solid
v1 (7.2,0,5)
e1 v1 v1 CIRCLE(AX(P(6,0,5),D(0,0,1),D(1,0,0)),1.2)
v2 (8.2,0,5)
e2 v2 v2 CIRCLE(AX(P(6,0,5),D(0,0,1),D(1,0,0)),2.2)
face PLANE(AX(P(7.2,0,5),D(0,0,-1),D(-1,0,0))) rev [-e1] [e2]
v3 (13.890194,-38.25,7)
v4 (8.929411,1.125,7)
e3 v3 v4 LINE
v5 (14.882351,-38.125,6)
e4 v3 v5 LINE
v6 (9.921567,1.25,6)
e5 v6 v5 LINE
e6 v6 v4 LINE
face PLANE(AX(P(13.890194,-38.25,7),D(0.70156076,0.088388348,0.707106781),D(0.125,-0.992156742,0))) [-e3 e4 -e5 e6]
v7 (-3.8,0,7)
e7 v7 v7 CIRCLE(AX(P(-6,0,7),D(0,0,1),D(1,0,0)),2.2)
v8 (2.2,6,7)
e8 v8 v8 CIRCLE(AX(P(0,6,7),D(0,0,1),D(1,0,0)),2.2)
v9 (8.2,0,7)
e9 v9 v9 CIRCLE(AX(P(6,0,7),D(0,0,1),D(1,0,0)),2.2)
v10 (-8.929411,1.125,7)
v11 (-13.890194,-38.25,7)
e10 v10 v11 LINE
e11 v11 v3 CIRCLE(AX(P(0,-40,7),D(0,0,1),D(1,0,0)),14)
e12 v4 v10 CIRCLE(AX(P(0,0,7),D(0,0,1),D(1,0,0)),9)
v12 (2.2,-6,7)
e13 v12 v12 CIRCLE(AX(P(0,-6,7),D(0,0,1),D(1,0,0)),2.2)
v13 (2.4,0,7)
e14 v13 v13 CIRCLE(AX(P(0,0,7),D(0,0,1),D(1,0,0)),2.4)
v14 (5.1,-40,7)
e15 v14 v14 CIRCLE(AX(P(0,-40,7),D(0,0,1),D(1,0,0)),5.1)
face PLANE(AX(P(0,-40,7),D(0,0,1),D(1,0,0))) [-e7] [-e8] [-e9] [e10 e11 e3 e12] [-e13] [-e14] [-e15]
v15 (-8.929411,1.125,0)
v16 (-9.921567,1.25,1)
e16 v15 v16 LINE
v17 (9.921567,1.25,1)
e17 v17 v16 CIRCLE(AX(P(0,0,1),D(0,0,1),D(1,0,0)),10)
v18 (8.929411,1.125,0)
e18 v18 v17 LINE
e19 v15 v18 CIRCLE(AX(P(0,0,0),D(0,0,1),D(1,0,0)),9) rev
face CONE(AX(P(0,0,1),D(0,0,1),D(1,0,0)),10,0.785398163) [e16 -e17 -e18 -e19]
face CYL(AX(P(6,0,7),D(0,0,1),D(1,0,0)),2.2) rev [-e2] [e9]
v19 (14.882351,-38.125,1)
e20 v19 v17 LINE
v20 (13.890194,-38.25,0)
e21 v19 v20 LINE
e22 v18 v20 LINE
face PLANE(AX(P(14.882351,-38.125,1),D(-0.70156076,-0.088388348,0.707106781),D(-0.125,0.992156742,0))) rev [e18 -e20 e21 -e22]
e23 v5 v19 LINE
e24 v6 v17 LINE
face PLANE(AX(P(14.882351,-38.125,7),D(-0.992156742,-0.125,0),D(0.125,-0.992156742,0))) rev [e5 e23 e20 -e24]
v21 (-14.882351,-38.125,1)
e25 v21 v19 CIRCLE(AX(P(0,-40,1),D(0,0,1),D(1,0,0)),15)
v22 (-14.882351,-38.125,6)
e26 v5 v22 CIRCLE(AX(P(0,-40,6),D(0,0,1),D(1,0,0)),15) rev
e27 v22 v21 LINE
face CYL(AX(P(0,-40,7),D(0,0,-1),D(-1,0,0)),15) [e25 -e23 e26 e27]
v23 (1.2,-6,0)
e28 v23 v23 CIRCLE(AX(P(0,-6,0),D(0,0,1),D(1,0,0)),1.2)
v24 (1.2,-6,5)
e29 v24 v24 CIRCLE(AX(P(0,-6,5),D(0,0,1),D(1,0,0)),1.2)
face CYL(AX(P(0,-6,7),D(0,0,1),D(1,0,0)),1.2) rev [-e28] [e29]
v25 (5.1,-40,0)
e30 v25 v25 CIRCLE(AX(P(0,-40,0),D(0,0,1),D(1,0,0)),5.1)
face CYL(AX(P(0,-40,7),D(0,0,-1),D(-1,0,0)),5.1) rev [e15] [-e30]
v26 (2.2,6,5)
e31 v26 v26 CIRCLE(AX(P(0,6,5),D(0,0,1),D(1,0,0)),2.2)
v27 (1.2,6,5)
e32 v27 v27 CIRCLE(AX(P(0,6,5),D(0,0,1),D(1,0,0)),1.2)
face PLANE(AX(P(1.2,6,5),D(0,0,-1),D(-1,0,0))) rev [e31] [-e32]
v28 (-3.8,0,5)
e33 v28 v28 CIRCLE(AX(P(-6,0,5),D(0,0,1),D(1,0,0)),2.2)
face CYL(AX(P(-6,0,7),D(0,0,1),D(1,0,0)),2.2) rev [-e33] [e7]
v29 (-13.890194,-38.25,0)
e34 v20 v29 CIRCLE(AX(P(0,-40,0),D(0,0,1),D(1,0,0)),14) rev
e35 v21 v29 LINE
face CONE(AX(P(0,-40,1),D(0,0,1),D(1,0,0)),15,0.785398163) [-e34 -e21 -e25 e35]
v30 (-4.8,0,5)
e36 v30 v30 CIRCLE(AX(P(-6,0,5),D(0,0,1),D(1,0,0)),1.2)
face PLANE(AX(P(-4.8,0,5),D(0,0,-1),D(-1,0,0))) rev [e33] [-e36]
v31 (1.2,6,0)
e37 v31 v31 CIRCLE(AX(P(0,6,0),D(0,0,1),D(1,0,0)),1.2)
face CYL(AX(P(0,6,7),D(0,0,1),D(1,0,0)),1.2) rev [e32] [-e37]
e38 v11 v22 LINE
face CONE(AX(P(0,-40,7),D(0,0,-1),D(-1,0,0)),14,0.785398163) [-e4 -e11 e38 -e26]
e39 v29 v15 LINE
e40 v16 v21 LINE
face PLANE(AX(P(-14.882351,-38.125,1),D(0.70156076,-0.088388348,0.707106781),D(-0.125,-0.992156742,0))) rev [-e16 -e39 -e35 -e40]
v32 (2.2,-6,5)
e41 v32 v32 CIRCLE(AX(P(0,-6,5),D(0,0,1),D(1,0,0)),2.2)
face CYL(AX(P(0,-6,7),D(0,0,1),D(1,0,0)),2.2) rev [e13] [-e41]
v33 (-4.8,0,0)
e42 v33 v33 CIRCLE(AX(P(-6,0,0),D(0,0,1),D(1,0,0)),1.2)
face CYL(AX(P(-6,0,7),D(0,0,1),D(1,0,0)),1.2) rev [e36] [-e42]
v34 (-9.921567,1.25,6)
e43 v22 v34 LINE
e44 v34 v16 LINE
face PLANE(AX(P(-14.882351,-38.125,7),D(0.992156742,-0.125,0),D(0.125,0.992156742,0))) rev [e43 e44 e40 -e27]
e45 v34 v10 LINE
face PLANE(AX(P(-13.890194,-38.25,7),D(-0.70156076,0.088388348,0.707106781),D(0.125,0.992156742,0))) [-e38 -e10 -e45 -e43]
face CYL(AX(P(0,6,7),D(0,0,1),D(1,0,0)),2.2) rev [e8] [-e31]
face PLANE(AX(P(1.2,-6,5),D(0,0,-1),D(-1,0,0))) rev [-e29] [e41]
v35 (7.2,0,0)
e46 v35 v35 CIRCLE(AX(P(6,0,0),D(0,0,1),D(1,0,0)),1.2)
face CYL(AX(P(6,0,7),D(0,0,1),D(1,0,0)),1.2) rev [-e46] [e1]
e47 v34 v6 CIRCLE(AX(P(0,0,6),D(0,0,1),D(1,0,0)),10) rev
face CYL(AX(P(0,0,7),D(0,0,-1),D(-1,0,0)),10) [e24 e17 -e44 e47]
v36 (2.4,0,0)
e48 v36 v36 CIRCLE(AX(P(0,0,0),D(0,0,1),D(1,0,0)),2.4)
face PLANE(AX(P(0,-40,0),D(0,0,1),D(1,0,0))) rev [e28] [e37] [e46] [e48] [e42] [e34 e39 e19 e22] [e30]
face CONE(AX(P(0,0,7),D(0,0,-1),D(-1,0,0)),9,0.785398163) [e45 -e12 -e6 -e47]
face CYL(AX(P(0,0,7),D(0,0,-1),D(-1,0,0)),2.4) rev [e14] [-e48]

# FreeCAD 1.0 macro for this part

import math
import FreeCAD as App
import Part
import Sketcher

V = App.Vector


def edges_at(feature, points):
    """Names of the edges that pass closest to the given points."""
    edges = feature.Shape.Edges
    near = lambda p: min(range(len(edges)), key=lambda i: edges[i].distToShape(Part.Vertex(*p))[0])
    return sorted({f"Edge{near(p) + 1}" for p in points})

doc = App.newDocument("Part")
body = doc.addObject("PartDesign::Body", "Body")

# Sketch on XY plane
sketch1 = body.newObject("Sketcher::SketchObject", "Sketch")
sketch1.AttachmentSupport = (doc.getObject("XY_Plane"), [""])
sketch1.MapMode = "FlatFace"
sketch1.addGeometry([
    Part.LineSegment(V(-9.921567, 1.25, 0), V(-14.882351, -38.125, 0)),  # 0
    Part.ArcOfCircle(Part.Circle(V(0, -40, 0), V(0, 0, 1), 15), math.radians(172.819244), math.radians(367.180756)),  # 1
    Part.LineSegment(V(14.882351, -38.125, 0), V(9.921567, 1.25, 0)),  # 2
    Part.ArcOfCircle(Part.Circle(V(0, 0, 0), V(0, 0, 1), 10), math.radians(7.180756), math.radians(172.819244)),  # 3
    Part.Circle(V(0, -40, 0), V(0, 0, 1), 5.1),  # 4
    Part.Circle(V(0, 0, 0), V(0, 0, 1), 2.4),  # 5
], False)
sketch1.addConstraint([
    Sketcher.Constraint("Tangent", 0, 2, 1, 1),
    Sketcher.Constraint("Tangent", 1, 2, 2, 1),
    Sketcher.Constraint("Tangent", 2, 2, 3, 1),
    Sketcher.Constraint("Tangent", 3, 2, 0, 1),
    Sketcher.Constraint("Coincident", 3, 3, -1, 1),
    Sketcher.Constraint("Coincident", 5, 3, -1, 1),
    Sketcher.Constraint("Coincident", 4, 3, 1, 3),
    Sketcher.Constraint("PointOnObject", 1, 3, -2),
    Sketcher.Constraint("Radius", 1, 15.0),
    Sketcher.Constraint("Radius", 3, 10.0),
    Sketcher.Constraint("Diameter", 4, 10.2),
    Sketcher.Constraint("Diameter", 5, 4.8),
    Sketcher.Constraint("DistanceY", 1, 3, -1, 1, 40.0),
])
pad1 = body.newObject("PartDesign::Pad", "Pad")
pad1.Profile = sketch1
pad1.Length = 7

# Sketch on XY plane
sketch2 = body.newObject("Sketcher::SketchObject", "Sketch001")
sketch2.AttachmentSupport = (doc.getObject("XY_Plane"), [""])
sketch2.MapMode = "FlatFace"
sketch2.AttachmentOffset = App.Placement(V(0, 0, 7), App.Rotation())
sketch2.addGeometry([
    Part.Circle(V(0, 6, 0), V(0, 0, 1), 1.2),
    Part.Circle(V(6, 0, 0), V(0, 0, 1), 1.2),
    Part.Circle(V(0, -6, 0), V(0, 0, 1), 1.2),
    Part.Circle(V(-6, 0, 0), V(0, 0, 1), 1.2),
], False)
sketch2.addConstraint([
    Sketcher.Constraint("Equal", 0, 1),
    Sketcher.Constraint("Equal", 1, 2),
    Sketcher.Constraint("Equal", 2, 3),
    Sketcher.Constraint("Symmetric", 0, 3, 2, 3, -1, 1),
    Sketcher.Constraint("Symmetric", 1, 3, 3, 3, -1, 1),
    Sketcher.Constraint("PointOnObject", 0, 3, -2),
    Sketcher.Constraint("PointOnObject", 1, 3, -1),
    Sketcher.Constraint("Diameter", 0, 2.4),
    Sketcher.Constraint("DistanceY", -1, 1, 0, 3, 6.0),
    Sketcher.Constraint("DistanceX", -1, 1, 1, 3, 6.0),
])
doc.recompute()
hole = body.newObject("PartDesign::Hole", "Hole")
hole.Profile = sketch2
hole.ThreadType = "None"
hole.Diameter = 2.4
hole.DepthType = "ThroughAll"
hole.HoleCutType = "Counterbore"
hole.HoleCutDiameter = 4.4
hole.HoleCutDepth = 2
doc.recompute()

chamfer = body.newObject("PartDesign::Chamfer", "Chamfer")
chamfer.Base = (hole, edges_at(hole, [
    (0, 10, 7),
    (-12.402, -18.438, 7),
    (0, -55, 7),
    (-12.402, -18.438, 0),
    (0, 10, 0),
    (12.402, -18.438, 0),
    (0, -55, 0),
    (12.402, -18.438, 7),
]))
chamfer.Size = 1

doc.recompute()
